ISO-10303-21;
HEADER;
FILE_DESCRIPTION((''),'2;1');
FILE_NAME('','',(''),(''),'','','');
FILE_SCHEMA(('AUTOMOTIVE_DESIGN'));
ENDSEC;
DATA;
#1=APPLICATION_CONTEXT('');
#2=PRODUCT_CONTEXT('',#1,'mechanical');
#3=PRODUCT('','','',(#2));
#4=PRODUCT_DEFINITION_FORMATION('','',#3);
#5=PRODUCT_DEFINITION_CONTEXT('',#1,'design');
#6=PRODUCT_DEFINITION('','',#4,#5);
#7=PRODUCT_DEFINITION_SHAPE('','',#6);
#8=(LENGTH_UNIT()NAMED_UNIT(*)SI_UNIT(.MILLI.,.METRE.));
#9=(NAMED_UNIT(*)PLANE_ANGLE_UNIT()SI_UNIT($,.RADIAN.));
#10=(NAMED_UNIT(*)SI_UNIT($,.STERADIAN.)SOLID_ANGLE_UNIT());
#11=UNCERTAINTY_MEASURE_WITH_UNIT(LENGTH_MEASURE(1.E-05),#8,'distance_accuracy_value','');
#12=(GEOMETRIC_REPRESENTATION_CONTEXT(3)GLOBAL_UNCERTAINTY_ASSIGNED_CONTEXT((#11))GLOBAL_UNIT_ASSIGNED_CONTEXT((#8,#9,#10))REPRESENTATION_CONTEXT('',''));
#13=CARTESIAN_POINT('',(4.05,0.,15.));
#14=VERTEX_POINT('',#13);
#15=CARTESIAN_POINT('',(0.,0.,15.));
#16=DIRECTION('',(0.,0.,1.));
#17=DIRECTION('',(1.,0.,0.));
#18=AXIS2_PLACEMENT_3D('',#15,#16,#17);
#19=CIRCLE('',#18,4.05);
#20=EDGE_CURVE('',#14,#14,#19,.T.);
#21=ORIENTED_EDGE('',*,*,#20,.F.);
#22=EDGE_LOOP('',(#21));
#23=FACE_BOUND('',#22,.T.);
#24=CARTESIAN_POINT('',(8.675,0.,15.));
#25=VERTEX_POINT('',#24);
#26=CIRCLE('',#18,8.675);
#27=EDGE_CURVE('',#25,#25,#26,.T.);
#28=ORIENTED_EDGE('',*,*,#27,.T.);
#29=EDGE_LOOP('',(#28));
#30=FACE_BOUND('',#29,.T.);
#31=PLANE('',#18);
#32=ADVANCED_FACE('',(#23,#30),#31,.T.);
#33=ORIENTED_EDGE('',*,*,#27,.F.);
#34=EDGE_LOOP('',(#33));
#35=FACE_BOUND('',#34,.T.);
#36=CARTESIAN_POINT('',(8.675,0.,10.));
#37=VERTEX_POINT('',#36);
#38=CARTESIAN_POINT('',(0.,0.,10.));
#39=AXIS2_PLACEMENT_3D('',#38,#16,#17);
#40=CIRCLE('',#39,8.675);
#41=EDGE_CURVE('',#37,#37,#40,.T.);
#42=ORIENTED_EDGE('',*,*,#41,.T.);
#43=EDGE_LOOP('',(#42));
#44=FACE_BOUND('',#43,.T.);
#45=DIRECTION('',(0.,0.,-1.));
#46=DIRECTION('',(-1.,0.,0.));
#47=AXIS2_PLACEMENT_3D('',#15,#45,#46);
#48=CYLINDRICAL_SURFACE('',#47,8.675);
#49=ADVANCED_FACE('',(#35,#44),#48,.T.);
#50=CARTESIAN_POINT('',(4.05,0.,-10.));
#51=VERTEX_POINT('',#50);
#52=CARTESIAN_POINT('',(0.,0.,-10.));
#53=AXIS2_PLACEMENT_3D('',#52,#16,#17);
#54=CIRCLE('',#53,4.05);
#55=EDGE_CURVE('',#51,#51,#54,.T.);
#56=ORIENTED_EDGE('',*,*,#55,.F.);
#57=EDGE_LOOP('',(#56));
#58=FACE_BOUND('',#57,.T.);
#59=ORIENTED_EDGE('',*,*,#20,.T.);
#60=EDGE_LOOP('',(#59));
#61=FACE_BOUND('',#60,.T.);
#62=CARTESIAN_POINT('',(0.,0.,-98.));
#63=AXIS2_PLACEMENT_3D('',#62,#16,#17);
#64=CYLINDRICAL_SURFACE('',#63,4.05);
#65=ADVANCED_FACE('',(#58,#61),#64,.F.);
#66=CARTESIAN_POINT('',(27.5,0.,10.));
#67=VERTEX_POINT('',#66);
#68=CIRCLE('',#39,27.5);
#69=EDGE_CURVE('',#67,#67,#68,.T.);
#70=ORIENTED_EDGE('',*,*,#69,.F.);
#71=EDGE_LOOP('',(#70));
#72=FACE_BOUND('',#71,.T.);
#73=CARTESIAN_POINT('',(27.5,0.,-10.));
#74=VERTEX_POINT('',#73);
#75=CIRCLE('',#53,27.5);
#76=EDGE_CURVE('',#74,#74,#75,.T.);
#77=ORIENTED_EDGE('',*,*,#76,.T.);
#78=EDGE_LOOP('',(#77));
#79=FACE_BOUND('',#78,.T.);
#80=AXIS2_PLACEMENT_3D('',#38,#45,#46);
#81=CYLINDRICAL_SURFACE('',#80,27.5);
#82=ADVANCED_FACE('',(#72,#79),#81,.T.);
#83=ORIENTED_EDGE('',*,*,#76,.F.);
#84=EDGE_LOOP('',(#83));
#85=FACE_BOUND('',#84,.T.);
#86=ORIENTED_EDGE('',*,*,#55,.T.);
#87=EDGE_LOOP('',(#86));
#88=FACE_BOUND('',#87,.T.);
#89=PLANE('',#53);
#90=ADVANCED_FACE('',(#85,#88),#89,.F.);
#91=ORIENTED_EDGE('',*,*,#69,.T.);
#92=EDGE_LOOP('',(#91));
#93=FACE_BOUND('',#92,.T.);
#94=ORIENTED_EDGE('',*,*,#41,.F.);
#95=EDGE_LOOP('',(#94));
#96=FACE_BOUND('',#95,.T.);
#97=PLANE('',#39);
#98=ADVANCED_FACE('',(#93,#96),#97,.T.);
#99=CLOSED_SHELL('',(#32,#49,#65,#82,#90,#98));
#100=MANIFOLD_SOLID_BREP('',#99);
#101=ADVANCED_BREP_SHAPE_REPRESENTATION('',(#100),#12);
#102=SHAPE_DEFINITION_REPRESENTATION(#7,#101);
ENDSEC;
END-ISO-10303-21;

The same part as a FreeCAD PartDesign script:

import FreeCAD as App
import Part
import Sketcher
from FreeCAD import Vector

doc = App.newDocument("Part")
body = doc.addObject("PartDesign::Body", "Body")

# Sketch on XY plane
sketch1 = body.newObject("Sketcher::SketchObject", "Sketch")
sketch1.AttachmentSupport = (doc.getObject("XY_Plane"), [""])
sketch1.MapMode = "FlatFace"
sketch1.addGeometry(Part.Circle(Vector(0, 0, 0), Vector(0, 0, 1), 27.5), False)
sketch1.addConstraint(Sketcher.Constraint("Coincident", 0, 3, -1, 1))
sketch1.addConstraint(Sketcher.Constraint("Diameter", 0, 55.0))
pad1 = body.newObject("PartDesign::Pad", "Pad")
pad1.Profile = sketch1
pad1.Length = 20
pad1.Midplane = True

# Sketch on XY plane
sketch2 = body.newObject("Sketcher::SketchObject", "Sketch001")
sketch2.AttachmentSupport = (doc.getObject("XY_Plane"), [""])
sketch2.MapMode = "FlatFace"
sketch2.AttachmentOffset = App.Placement(Vector(0, 0, 10), App.Rotation())
sketch2.addGeometry(Part.Circle(Vector(0, 0, 0), Vector(0, 0, 1), 4.05), False)
sketch2.addConstraint(Sketcher.Constraint("Coincident", 0, 3, -1, 1))
sketch2.addConstraint(Sketcher.Constraint("Diameter", 0, 8.1))
pocket1 = body.newObject("PartDesign::Pocket", "Pocket")
pocket1.Profile = sketch2
pocket1.Length = 108

# Sketch on XY plane
sketch3 = body.newObject("Sketcher::SketchObject", "Sketch002")
sketch3.AttachmentSupport = (doc.getObject("XY_Plane"), [""])
sketch3.MapMode = "FlatFace"
sketch3.AttachmentOffset = App.Placement(Vector(0, 0, 10), App.Rotation())
sketch3.addGeometry(Part.Circle(Vector(0, 0, 0), Vector(0, 0, 1), 8.675), False)
sketch3.addConstraint(Sketcher.Constraint("Coincident", 0, 3, -1, 1))
sketch3.addConstraint(Sketcher.Constraint("Diameter", 0, 17.35))
pad2 = body.newObject("PartDesign::Pad", "Pad001")
pad2.Profile = sketch3
pad2.Length = 5

# Sketch on XY plane
sketch4 = body.newObject("Sketcher::SketchObject", "Sketch003")
sketch4.AttachmentSupport = (doc.getObject("XY_Plane"), [""])
sketch4.MapMode = "FlatFace"
sketch4.AttachmentOffset = App.Placement(Vector(0, 0, 15), App.Rotation())
sketch4.addGeometry(Part.Circle(Vector(0, 0, 0), Vector(0, 0, 1), 4.05), False)
sketch4.addConstraint(Sketcher.Constraint("Coincident", 0, 3, -1, 1))
sketch4.addConstraint(Sketcher.Constraint("Diameter", 0, 8.1))
pocket2 = body.newObject("PartDesign::Pocket", "Pocket001")
pocket2.Profile = sketch4
pocket2.Length = 244
pocket2.Midplane = True

doc.recompute()
